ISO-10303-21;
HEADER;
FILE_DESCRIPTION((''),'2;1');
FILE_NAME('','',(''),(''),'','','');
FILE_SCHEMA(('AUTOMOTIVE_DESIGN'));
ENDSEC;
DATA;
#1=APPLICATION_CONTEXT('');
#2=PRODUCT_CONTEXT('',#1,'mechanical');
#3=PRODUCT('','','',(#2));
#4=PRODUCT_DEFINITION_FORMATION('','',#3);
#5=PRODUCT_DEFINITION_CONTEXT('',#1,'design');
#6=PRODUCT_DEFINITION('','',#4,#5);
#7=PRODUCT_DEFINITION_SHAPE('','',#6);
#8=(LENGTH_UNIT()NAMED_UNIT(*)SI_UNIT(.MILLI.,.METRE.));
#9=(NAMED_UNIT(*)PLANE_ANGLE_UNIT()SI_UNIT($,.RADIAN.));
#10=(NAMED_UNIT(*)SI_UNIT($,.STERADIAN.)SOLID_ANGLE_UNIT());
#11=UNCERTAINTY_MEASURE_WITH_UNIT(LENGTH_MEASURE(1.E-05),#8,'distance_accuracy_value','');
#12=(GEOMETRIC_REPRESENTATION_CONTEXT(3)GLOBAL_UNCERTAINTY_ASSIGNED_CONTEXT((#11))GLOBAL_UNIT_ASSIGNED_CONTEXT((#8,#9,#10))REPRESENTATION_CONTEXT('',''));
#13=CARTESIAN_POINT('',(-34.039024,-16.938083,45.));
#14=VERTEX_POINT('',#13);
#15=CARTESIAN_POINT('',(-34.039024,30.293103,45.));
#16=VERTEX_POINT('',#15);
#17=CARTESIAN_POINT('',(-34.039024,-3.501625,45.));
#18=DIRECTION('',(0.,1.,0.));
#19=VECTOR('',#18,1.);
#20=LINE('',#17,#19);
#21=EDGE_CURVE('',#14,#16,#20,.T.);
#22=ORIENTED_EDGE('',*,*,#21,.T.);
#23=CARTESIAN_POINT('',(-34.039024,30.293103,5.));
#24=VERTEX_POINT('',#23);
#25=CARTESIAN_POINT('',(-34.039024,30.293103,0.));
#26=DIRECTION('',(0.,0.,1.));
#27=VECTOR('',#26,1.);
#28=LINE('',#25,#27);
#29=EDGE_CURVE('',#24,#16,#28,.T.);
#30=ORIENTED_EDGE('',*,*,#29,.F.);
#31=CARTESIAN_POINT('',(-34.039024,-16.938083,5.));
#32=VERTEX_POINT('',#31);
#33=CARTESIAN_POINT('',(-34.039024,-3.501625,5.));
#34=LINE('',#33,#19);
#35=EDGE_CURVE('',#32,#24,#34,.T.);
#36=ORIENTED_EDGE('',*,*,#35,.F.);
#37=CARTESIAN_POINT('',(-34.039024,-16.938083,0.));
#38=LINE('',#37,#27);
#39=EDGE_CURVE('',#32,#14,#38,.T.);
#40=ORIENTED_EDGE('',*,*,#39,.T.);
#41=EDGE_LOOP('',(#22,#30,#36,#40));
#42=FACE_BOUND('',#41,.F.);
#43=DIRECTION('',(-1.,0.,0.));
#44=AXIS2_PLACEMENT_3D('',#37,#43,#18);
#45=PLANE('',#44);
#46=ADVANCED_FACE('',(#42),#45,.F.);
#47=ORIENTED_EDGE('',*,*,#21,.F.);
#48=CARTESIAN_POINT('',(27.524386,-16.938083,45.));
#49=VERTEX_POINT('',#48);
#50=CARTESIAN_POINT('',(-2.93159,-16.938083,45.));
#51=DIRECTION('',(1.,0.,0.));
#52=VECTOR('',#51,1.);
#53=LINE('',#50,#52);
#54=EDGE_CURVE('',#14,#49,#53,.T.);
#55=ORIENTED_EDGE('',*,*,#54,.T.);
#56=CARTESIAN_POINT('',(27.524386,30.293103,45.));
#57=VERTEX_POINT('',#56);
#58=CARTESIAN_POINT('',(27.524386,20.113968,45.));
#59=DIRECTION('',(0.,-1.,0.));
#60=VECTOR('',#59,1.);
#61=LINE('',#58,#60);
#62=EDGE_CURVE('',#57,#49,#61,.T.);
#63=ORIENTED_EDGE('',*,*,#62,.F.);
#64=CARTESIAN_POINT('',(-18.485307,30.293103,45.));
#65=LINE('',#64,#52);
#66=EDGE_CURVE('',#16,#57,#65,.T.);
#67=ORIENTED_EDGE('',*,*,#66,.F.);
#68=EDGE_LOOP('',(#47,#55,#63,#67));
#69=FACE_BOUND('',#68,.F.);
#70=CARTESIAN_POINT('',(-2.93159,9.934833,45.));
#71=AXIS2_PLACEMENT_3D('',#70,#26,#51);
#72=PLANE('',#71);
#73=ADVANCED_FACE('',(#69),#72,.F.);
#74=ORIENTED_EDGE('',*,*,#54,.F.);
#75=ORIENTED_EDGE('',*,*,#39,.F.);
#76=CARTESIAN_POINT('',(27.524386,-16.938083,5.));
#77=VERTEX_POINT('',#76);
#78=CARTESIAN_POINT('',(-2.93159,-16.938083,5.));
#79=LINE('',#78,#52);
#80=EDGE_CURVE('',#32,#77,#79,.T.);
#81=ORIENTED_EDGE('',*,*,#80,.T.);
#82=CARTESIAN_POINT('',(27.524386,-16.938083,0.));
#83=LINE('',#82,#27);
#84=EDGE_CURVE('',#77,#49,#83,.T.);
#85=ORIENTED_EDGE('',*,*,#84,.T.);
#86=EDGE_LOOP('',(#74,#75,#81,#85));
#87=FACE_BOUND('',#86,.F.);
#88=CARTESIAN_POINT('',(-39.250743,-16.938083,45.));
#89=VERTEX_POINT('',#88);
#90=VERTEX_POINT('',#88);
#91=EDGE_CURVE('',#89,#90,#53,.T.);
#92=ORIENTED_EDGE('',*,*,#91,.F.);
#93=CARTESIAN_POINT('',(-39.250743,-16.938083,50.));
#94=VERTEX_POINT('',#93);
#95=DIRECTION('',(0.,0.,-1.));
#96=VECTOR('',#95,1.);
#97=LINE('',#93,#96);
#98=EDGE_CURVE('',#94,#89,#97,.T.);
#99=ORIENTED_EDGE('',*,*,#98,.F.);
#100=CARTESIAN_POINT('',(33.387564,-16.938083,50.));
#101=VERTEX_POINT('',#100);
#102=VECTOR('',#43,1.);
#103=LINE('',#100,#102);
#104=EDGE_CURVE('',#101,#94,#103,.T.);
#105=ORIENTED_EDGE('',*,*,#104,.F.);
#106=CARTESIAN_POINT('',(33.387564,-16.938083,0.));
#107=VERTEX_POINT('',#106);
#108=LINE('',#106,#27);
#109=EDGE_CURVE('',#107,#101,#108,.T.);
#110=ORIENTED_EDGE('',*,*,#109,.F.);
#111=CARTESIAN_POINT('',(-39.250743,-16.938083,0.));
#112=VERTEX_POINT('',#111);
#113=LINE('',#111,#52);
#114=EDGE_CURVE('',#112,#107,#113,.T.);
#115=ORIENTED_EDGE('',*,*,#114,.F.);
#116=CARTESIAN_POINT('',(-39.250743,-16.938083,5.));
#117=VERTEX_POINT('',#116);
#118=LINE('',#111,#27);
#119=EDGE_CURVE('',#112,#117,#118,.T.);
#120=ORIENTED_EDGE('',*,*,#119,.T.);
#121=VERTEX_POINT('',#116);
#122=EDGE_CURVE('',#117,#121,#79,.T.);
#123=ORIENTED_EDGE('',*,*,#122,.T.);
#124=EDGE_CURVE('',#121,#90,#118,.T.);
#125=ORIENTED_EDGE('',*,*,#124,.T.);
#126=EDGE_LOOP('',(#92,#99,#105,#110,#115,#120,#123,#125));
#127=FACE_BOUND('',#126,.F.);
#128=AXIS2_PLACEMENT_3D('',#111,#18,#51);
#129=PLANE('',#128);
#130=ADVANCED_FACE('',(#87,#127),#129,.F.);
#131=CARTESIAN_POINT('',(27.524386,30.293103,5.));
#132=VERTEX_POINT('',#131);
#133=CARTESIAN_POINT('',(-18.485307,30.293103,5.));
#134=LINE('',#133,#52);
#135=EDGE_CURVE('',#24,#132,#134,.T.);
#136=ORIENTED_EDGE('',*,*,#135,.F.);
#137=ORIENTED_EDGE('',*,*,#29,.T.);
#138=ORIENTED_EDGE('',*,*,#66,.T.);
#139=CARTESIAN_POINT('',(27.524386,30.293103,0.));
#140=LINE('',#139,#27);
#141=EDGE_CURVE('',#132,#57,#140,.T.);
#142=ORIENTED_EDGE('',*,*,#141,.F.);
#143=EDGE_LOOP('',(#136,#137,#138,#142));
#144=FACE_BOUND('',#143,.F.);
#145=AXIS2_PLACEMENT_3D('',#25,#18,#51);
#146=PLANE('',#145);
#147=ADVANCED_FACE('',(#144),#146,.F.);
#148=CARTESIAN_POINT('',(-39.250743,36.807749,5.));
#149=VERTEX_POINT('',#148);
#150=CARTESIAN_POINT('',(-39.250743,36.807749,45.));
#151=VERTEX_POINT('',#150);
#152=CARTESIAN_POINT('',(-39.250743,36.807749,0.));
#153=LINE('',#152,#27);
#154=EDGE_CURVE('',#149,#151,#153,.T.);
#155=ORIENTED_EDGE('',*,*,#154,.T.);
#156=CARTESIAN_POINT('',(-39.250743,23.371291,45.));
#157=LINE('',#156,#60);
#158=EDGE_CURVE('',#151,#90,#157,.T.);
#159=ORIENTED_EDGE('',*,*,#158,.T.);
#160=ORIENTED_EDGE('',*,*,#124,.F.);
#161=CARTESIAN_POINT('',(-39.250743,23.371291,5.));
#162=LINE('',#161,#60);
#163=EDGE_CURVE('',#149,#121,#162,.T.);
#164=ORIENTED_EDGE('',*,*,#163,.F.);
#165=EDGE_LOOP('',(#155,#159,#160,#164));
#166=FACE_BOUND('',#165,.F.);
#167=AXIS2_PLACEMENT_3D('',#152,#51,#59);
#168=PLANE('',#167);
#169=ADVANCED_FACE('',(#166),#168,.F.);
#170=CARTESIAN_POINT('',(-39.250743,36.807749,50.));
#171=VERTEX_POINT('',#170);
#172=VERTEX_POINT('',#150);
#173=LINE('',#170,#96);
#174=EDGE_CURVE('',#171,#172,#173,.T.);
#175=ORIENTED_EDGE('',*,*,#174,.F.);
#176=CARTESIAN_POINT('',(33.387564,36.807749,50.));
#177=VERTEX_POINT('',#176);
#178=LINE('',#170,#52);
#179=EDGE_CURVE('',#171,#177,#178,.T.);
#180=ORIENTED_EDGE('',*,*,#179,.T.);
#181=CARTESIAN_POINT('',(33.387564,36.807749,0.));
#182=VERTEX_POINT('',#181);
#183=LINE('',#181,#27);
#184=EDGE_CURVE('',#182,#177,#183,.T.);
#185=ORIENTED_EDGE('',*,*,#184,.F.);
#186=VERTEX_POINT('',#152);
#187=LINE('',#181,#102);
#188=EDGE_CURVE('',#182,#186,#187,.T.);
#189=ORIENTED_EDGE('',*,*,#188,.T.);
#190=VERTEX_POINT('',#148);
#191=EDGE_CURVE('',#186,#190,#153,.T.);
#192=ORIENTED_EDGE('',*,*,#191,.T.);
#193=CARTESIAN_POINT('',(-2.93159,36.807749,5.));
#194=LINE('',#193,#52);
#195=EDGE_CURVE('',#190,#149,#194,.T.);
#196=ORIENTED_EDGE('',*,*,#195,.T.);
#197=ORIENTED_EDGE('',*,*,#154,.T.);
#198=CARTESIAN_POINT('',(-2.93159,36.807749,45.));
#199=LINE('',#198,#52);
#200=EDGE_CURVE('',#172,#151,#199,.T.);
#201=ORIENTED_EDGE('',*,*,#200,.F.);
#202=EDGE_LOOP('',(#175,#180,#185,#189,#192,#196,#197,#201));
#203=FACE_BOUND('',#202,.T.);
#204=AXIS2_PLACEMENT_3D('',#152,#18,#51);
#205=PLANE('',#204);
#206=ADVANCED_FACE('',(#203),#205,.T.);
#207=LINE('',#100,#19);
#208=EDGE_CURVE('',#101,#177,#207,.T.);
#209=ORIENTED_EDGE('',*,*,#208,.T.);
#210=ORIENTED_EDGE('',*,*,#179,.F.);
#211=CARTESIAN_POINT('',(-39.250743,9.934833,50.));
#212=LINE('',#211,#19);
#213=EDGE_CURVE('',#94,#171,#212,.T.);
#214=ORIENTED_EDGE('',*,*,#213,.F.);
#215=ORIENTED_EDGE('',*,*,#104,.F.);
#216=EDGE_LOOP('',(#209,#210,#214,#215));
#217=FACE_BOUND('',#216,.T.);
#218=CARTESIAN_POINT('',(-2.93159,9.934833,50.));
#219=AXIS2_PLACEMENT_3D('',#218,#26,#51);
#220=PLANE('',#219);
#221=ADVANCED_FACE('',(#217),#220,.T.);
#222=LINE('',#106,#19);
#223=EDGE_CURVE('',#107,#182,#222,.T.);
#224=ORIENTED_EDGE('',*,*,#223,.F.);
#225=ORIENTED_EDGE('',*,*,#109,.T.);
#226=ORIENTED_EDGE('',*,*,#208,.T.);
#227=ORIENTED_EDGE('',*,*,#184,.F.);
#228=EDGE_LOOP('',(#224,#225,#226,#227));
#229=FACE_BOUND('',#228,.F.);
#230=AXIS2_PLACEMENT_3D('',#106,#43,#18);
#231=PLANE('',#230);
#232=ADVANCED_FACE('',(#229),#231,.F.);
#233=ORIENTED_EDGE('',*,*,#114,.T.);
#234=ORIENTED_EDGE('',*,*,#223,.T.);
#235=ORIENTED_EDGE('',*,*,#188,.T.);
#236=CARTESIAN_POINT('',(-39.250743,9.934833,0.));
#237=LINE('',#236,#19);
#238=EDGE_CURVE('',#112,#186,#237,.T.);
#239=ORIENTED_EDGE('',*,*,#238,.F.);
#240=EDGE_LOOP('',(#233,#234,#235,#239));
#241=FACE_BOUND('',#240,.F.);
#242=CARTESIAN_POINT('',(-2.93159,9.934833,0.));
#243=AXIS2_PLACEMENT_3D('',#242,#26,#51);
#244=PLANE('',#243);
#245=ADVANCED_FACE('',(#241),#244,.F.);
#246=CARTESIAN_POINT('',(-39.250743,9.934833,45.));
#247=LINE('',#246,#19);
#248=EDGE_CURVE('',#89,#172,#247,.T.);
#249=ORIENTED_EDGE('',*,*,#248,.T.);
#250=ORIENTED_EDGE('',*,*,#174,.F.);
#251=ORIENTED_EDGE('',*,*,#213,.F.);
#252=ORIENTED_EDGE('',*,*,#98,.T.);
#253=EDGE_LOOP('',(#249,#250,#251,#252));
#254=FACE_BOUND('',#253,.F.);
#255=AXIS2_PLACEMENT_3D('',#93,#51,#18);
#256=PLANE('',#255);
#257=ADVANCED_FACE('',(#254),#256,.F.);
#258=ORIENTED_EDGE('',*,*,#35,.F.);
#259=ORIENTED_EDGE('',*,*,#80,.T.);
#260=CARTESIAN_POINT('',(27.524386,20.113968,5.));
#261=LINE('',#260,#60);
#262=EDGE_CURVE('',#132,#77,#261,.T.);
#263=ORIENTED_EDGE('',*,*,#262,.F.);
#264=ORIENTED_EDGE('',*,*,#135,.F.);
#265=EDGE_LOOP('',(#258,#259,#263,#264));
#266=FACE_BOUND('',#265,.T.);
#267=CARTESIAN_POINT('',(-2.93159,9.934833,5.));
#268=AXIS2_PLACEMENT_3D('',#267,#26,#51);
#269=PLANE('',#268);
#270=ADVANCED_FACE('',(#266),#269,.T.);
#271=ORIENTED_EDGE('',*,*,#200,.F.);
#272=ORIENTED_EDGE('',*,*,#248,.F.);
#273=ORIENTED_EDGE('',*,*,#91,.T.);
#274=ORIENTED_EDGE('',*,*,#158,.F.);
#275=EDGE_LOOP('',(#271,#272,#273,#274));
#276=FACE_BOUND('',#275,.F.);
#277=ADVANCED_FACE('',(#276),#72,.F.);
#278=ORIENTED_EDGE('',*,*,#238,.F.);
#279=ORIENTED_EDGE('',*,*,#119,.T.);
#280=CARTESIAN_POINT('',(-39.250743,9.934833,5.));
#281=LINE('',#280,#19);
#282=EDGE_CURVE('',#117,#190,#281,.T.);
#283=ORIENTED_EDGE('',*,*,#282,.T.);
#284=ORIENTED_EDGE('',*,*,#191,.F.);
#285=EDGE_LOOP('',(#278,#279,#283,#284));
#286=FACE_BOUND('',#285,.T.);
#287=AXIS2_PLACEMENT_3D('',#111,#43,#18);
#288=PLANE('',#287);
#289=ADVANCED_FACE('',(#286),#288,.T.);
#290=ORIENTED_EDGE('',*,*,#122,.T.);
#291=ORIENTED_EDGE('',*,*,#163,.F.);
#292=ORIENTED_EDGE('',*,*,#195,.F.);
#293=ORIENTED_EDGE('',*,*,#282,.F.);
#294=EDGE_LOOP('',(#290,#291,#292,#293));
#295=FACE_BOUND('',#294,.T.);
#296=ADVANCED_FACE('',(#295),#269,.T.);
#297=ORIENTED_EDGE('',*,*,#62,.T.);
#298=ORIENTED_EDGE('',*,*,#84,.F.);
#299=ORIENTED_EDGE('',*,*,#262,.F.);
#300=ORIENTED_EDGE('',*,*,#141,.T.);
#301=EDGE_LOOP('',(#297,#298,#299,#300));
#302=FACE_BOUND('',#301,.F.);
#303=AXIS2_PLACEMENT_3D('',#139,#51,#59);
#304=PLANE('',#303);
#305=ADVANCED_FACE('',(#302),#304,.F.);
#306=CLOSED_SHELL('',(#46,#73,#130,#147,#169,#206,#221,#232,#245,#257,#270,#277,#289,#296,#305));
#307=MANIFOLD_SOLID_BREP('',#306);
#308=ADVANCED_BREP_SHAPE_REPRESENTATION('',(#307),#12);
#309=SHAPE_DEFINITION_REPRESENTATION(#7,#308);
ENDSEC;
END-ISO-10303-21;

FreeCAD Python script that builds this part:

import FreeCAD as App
import Part
import Sketcher

V = App.Vector


def add_polygon(sketch, points):
    """Adds a closed chain of lines whose ends are joined by coincident constraints."""
    first, n = sketch.GeometryCount, len(points)
    for a, b in zip(points, points[1:] + points[:1]):
        sketch.addGeometry(Part.LineSegment(App.Vector(*a, 0), App.Vector(*b, 0)), False)
    for i in range(n):
        sketch.addConstraint(Sketcher.Constraint("Coincident", first + i, 2, first + (i + 1) % n, 1))

doc = App.newDocument("Part")
body = doc.addObject("PartDesign::Body", "Body")

sketch1 = doc.addObject("Sketcher::SketchObject", "Sketch")
body.addObject(sketch1)
sketch1.AttachmentSupport = (doc.XY_Plane, [""])
sketch1.MapMode = "FlatFace"
add_polygon(sketch1, [(-39, -17), (-34, -17), (-34, 30), (28, 30), (28, -17), (33, -17), (33, 37), (-39, 37)])
sketch1.addConstraint(Sketcher.Constraint("Horizontal", 0))
sketch1.addConstraint(Sketcher.Constraint("Vertical", 1))
sketch1.addConstraint(Sketcher.Constraint("Horizontal", 2))
sketch1.addConstraint(Sketcher.Constraint("Vertical", 3))
sketch1.addConstraint(Sketcher.Constraint("Horizontal", 4))
sketch1.addConstraint(Sketcher.Constraint("Vertical", 5))
sketch1.addConstraint(Sketcher.Constraint("Horizontal", 6))
sketch1.addConstraint(Sketcher.Constraint("Vertical", 7))
sketch1.addConstraint(Sketcher.Constraint("Horizontal", 0, 2, 3, 2))
sketch1.addConstraint(Sketcher.Constraint("DistanceX", 0, 1, 0, 2, 5.211719))
sketch1.addConstraint(Sketcher.Constraint("DistanceX", 2, 1, 2, 2, 61.56341))
sketch1.addConstraint(Sketcher.Constraint("DistanceX", 4, 1, 4, 2, 5.863178))
sketch1.addConstraint(Sketcher.Constraint("DistanceY", 1, 1, 1, 2, 47.231186))
sketch1.addConstraint(Sketcher.Constraint("DistanceY", 5, 1, 5, 2, 53.745832))
sketch1.addConstraint(Sketcher.Constraint("DistanceY", -1, 1, 5, 2, 36.807749))
sketch1.addConstraint(Sketcher.Constraint("DistanceX", 0, 2, -1, 1, 34.039024))
pad1 = doc.addObject("PartDesign::Pad", "Pad")
body.addObject(pad1)
pad1.Profile = sketch1
pad1.Length = 50

sketch2 = doc.addObject("Sketcher::SketchObject", "Sketch001")
body.addObject(sketch2)
sketch2.AttachmentSupport = (doc.XY_Plane, [""])
sketch2.MapMode = "FlatFace"
sketch2.AttachmentOffset = App.Placement(V(0, 0, 50), App.Rotation())
add_polygon(sketch2, [(-39, 37), (-39, -17), (33, -17), (33, 37)])
sketch2.addConstraint(Sketcher.Constraint("Vertical", 0))
sketch2.addConstraint(Sketcher.Constraint("Horizontal", 1))
sketch2.addConstraint(Sketcher.Constraint("Vertical", 2))
sketch2.addConstraint(Sketcher.Constraint("Horizontal", 3))
sketch2.addConstraint(Sketcher.Constraint("DistanceX", 1, 1, 1, 2, 72.638307))
sketch2.addConstraint(Sketcher.Constraint("DistanceY", 0, 2, 0, 1, 53.745832))
sketch2.addConstraint(Sketcher.Constraint("DistanceY", -1, 1, 2, 2, 36.807749))
sketch2.addConstraint(Sketcher.Constraint("DistanceX", 0, 2, -1, 1, 39.250743))
pad2 = doc.addObject("PartDesign::Pad", "Pad001")
body.addObject(pad2)
pad2.Profile = sketch2
pad2.Length = 5
pad2.Reversed = True

sketch3 = doc.addObject("Sketcher::SketchObject", "Sketch002")
body.addObject(sketch3)
sketch3.AttachmentSupport = (doc.XY_Plane, [""])
sketch3.MapMode = "FlatFace"
add_polygon(sketch3, [(-39, 37), (-39, -17), (33, -17), (33, 37)])
sketch3.addConstraint(Sketcher.Constraint("Vertical", 0))
sketch3.addConstraint(Sketcher.Constraint("Horizontal", 1))
sketch3.addConstraint(Sketcher.Constraint("Vertical", 2))
sketch3.addConstraint(Sketcher.Constraint("Horizontal", 3))
sketch3.addConstraint(Sketcher.Constraint("DistanceX", 1, 1, 1, 2, 72.638307))
sketch3.addConstraint(Sketcher.Constraint("DistanceY", 0, 2, 0, 1, 53.745832))
sketch3.addConstraint(Sketcher.Constraint("DistanceY", -1, 1, 2, 2, 36.807749))
sketch3.addConstraint(Sketcher.Constraint("DistanceX", 0, 2, -1, 1, 39.250743))
pad3 = doc.addObject("PartDesign::Pad", "Pad002")
body.addObject(pad3)
pad3.Profile = sketch3
pad3.Length = 5

doc.recompute()
